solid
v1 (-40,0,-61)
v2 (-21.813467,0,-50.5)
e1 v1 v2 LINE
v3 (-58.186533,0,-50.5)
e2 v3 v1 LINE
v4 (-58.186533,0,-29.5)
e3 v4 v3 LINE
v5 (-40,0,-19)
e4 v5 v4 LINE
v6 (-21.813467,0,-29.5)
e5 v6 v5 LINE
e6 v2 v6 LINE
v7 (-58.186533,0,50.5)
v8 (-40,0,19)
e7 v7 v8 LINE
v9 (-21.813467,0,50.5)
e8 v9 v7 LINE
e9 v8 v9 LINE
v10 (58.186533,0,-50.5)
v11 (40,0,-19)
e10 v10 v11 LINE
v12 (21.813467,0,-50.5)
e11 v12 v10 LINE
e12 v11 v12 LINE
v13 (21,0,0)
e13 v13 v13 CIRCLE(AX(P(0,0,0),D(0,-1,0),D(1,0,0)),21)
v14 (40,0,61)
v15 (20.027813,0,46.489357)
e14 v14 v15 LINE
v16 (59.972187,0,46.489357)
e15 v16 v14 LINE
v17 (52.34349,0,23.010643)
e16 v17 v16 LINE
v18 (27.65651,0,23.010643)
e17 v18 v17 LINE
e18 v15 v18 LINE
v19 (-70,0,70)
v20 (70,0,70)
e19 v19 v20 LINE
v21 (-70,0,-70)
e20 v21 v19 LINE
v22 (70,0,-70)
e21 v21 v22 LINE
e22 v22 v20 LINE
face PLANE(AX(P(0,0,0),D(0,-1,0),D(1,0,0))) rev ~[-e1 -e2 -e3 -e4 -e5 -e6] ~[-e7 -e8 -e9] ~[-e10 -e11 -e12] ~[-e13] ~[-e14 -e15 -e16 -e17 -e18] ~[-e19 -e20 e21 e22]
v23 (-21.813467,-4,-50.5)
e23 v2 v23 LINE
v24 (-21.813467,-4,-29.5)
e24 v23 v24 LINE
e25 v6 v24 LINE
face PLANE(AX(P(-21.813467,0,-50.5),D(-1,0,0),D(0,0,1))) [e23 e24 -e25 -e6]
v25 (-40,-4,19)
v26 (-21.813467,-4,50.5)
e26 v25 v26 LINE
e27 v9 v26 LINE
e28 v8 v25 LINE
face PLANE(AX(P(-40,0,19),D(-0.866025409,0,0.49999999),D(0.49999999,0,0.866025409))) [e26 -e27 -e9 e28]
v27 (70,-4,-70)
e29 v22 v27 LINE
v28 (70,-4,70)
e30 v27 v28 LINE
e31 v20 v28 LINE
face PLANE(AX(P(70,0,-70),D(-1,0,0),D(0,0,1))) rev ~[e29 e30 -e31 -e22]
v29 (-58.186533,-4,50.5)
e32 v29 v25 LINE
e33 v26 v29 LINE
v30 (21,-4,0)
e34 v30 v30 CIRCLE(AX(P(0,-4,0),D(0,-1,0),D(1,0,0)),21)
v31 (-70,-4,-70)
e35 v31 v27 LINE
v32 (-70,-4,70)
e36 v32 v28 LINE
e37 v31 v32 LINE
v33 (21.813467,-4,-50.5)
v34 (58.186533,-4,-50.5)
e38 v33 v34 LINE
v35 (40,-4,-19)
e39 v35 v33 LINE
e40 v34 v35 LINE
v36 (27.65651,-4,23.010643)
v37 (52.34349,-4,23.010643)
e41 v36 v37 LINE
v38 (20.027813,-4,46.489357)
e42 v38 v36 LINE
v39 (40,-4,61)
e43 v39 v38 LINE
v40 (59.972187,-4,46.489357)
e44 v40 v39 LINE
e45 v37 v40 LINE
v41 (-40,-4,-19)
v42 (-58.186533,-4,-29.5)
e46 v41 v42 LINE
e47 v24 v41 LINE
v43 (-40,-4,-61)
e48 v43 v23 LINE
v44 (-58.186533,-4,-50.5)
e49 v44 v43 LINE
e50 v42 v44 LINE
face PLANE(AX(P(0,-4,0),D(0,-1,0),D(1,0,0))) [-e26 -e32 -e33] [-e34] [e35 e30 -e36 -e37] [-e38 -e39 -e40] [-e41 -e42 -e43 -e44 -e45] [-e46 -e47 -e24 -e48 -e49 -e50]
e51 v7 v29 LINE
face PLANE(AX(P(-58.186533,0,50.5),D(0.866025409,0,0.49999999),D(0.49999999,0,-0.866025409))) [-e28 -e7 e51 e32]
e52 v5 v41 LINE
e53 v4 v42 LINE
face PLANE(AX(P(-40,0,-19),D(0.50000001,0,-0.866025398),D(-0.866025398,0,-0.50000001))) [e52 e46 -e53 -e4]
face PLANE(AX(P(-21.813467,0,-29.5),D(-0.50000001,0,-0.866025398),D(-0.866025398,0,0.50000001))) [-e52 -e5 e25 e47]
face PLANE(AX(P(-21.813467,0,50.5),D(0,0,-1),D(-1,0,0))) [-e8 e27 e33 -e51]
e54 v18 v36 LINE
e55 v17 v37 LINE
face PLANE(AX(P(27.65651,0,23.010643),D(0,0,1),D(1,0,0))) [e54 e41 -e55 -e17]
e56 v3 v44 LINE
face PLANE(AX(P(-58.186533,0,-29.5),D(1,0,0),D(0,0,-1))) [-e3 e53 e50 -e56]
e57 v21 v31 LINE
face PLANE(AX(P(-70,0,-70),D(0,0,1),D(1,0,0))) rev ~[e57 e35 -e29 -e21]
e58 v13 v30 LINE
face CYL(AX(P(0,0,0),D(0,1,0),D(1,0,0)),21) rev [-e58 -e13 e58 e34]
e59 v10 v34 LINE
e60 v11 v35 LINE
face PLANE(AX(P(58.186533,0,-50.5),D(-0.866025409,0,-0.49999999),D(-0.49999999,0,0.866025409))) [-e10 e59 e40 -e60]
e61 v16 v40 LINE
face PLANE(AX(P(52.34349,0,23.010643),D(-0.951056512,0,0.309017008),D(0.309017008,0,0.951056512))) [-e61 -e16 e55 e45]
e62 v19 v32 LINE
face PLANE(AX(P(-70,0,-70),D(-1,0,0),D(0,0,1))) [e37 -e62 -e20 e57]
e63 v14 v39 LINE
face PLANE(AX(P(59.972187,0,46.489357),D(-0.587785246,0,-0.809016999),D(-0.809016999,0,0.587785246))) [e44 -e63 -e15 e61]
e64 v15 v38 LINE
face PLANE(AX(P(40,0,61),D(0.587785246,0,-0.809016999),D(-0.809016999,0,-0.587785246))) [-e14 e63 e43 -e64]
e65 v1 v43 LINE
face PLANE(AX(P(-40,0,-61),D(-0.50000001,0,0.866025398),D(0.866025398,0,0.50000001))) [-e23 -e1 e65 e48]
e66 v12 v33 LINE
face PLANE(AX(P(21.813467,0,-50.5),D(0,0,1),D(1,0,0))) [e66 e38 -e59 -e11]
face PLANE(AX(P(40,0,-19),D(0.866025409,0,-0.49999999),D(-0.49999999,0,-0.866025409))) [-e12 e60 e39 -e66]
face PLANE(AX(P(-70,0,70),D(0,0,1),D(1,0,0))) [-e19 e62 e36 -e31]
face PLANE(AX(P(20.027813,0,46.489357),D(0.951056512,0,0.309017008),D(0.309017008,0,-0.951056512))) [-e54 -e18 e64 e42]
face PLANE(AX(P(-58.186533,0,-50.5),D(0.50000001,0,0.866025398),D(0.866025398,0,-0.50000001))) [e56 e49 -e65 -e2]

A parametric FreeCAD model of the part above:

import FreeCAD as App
import Part
import Sketcher
from FreeCAD import Vector
Q = App.Units.Quantity


def add_polygon(sketch, points):
    """Adds a closed chain of lines whose ends are joined by coincident constraints."""
    first, n = sketch.GeometryCount, len(points)
    for a, b in zip(points, points[1:] + points[:1]):
        sketch.addGeometry(Part.LineSegment(App.Vector(*a, 0), App.Vector(*b, 0)), False)
    for i in range(n):
        sketch.addConstraint(Sketcher.Constraint("Coincident", first + i, 2, first + (i + 1) % n, 1))

doc = App.newDocument("Part")
body = doc.addObject("PartDesign::Body", "Body")

# Sketch on XZ plane
sketch1 = body.newObject("Sketcher::SketchObject", "Sketch")
sketch1.AttachmentSupport = (doc.getObject("XZ_Plane"), [""])
sketch1.MapMode = "FlatFace"
add_polygon(sketch1, [(-70, 70), (-70, -70), (70, -70), (70, 70)])  # lines 0-3
add_polygon(sketch1, [(-40, -19), (-21.813467, -29.5), (-21.813467, -50.5), (-40, -61), (-58.186533, -50.5), (-58.186533, -29.5)])  # lines 4-9
add_polygon(sketch1, [(21.813467, -50.5), (40, -19), (58.186533, -50.5)])  # lines 10-12
sketch1.addGeometry(Part.Circle(Vector(0, 0, 0), Vector(0, 0, 1), 21), False)  # 13
add_polygon(sketch1, [(-21.813467, 50.5), (-40, 19), (-58.186533, 50.5)])  # lines 14-16
add_polygon(sketch1, [(52.34349, 23.010643), (27.65651, 23.010643), (20.027813, 46.489357), (40, 61), (59.972187, 46.489357)])  # lines 17-21
sketch1.addConstraint(Sketcher.Constraint("Vertical", 0))
sketch1.addConstraint(Sketcher.Constraint("Horizontal", 1))
sketch1.addConstraint(Sketcher.Constraint("Vertical", 2))
sketch1.addConstraint(Sketcher.Constraint("Horizontal", 3))
sketch1.addConstraint(Sketcher.Constraint("Vertical", 5))
sketch1.addConstraint(Sketcher.Constraint("Vertical", 8))
sketch1.addConstraint(Sketcher.Constraint("Horizontal", 12))
sketch1.addConstraint(Sketcher.Constraint("Horizontal", 16))
sketch1.addConstraint(Sketcher.Constraint("Horizontal", 17))
sketch1.addConstraint(Sketcher.Constraint("Coincident", 13, 3, -1, 1))
sketch1.addConstraint(Sketcher.Constraint("Symmetric", 0, 2, 2, 2, -1, 1))
sketch1.addConstraint(Sketcher.Constraint("Symmetric", 10, 2, 14, 2, -1, 1))
sketch1.addConstraint(Sketcher.Constraint("Symmetric", 11, 2, 15, 2, -1, 1))
sketch1.addConstraint(Sketcher.Constraint("Symmetric", 6, 2, 19, 2, -1, 1))
sketch1.addConstraint(Sketcher.Constraint("Symmetric", 9, 2, 10, 2, -2))
sketch1.addConstraint(Sketcher.Constraint("Symmetric", 7, 2, 11, 2, -2))
sketch1.addConstraint(Sketcher.Constraint("Symmetric", 5, 2, 12, 2, -2))
sketch1.addConstraint(Sketcher.Constraint("Parallel", 4, 7))
sketch1.addConstraint(Sketcher.Constraint("Parallel", 6, 9))
sketch1.addConstraint(Sketcher.Constraint("Perpendicular", 7, 10))
sketch1.addConstraint(Sketcher.Constraint("Perpendicular", 9, 11))
sketch1.addConstraint(Sketcher.Constraint("Parallel", 10, 14))
sketch1.addConstraint(Sketcher.Constraint("Horizontal", 4, 2, 8, 2))
sketch1.addConstraint(Sketcher.Constraint("Horizontal", 18, 2, 20, 2))
sketch1.addConstraint(Sketcher.Constraint("Equal", 3, 0))
sketch1.addConstraint(Sketcher.Constraint("Equal", 18, 19))
sketch1.addConstraint(Sketcher.Constraint("Equal", 19, 20))
sketch1.addConstraint(Sketcher.Constraint("Equal", 20, 21))
sketch1.addConstraint(Sketcher.Constraint("Diameter", 13, 42.0))
sketch1.addConstraint(Sketcher.Constraint("DistanceX", 1, 1, 1, 2, 140.0))
sketch1.addConstraint(Sketcher.Constraint("DistanceY", 5, 2, 5, 1, 21.0))
sketch1.addConstraint(Sketcher.Constraint("Angle", 4, Q("-30.000001 deg")))
sketch1.addConstraint(Sketcher.Constraint("Angle", 18, Q("108.000001 deg")))
sketch1.addConstraint(Sketcher.Constraint("Angle", 19, Q("36 deg")))
sketch1.addConstraint(Sketcher.Constraint("DistanceX", 6, 2, -1, 1, 40.0))
sketch1.addConstraint(Sketcher.Constraint("DistanceY", 6, 2, -1, 1, 61.0))
sketch1.addConstraint(Sketcher.Constraint("DistanceX", 17, 2, 17, 1, 24.68698))
pad1 = body.newObject("PartDesign::Pad", "Pad")
pad1.Profile = sketch1
pad1.Length = 4

doc.recompute()
